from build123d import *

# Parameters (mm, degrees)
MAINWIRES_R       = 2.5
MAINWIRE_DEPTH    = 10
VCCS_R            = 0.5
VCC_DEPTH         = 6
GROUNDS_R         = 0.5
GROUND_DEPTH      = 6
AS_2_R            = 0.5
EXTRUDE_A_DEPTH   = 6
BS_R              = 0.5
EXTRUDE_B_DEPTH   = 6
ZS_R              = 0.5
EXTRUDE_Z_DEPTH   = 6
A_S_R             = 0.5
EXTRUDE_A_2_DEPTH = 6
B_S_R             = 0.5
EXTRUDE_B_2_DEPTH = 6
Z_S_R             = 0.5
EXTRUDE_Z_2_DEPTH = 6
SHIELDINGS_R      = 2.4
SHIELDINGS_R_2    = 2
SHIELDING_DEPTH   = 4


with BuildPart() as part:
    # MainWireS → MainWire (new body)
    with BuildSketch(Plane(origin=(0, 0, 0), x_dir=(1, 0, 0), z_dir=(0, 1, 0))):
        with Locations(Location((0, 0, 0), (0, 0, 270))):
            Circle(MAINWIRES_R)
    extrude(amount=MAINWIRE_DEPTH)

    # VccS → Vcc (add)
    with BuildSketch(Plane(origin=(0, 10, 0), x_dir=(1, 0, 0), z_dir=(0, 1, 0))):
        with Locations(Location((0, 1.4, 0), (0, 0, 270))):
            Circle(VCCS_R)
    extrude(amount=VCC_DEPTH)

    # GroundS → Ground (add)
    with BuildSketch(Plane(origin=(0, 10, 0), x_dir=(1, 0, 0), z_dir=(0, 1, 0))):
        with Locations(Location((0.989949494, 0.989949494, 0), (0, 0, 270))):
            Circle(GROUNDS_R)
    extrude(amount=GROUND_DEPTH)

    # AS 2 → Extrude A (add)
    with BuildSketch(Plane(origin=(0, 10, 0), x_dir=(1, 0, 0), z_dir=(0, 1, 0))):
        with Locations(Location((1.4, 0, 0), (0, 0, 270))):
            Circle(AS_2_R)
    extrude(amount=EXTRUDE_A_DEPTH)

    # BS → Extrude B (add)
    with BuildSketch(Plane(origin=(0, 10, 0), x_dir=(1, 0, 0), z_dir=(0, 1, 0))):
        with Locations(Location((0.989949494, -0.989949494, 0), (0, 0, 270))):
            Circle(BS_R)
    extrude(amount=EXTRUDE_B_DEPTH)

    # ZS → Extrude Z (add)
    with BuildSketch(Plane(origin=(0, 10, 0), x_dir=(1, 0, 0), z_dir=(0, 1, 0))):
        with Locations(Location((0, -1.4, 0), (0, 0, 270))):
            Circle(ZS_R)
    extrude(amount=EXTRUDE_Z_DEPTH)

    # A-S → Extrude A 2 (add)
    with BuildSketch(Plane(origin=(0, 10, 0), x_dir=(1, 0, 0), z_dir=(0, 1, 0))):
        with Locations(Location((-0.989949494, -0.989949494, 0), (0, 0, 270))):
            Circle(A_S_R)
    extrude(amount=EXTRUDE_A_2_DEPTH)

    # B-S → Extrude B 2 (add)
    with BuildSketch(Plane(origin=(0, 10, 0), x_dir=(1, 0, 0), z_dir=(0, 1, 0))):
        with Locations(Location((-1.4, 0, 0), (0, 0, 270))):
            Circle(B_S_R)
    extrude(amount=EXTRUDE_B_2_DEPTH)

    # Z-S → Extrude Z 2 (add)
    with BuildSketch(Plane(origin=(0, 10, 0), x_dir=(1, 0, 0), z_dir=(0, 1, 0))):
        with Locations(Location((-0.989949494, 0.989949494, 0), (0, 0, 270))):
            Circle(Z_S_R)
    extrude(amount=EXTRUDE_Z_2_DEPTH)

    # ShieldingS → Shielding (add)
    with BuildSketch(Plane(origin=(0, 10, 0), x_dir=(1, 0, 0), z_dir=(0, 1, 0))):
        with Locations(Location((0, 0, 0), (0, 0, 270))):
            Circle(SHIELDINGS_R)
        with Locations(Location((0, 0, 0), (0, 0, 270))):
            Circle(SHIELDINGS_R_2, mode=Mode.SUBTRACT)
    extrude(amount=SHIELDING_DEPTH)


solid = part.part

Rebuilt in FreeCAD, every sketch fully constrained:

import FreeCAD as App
import Part
import Sketcher
from FreeCAD import Vector

doc = App.newDocument("Part")
body = doc.addObject("PartDesign::Body", "Body")

# Sketch on XZ plane
sketch1 = doc.addObject("Sketcher::SketchObject", "Sketch")
body.addObject(sketch1)
sketch1.AttachmentSupport = (doc.XZ_Plane, [""])
sketch1.MapMode = "FlatFace"
sketch1.addGeometry(Part.Circle(Vector(0, 0, 0), Vector(0, 0, 1), 2.5), False)
sketch1.addConstraint([
    Sketcher.Constraint("Coincident", 0, 3, -1, 1),
    Sketcher.Constraint("Diameter", 0, 5.0),
])
pad1 = doc.addObject("PartDesign::Pad", "Pad")
body.addObject(pad1)
pad1.Profile = sketch1
pad1.Length = 10
pad1.Reversed = True

# Sketch on XZ plane
sketch2 = doc.addObject("Sketcher::SketchObject", "Sketch001")
body.addObject(sketch2)
sketch2.AttachmentSupport = (doc.XZ_Plane, [""])
sketch2.MapMode = "FlatFace"
sketch2.AttachmentOffset = App.Placement(Vector(0, 0, -10), App.Rotation())
sketch2.addGeometry(Part.Circle(Vector(0, -1.4, 0), Vector(0, 0, 1), 0.5), False)
sketch2.addConstraint([
    Sketcher.Constraint("PointOnObject", 0, 3, -2),
    Sketcher.Constraint("Diameter", 0, 1.0),
    Sketcher.Constraint("DistanceY", 0, 3, -1, 1, 1.4),
])
pad2 = doc.addObject("PartDesign::Pad", "Pad001")
body.addObject(pad2)
pad2.Profile = sketch2
pad2.Length = 6
pad2.Reversed = True

# Sketch on XZ plane
sketch3 = doc.addObject("Sketcher::SketchObject", "Sketch002")
body.addObject(sketch3)
sketch3.AttachmentSupport = (doc.XZ_Plane, [""])
sketch3.MapMode = "FlatFace"
sketch3.AttachmentOffset = App.Placement(Vector(0, 0, -10), App.Rotation())
sketch3.addGeometry(Part.Circle(Vector(1, -1, 0), Vector(0, 0, 1), 0.5), False)
sketch3.addConstraint([
    Sketcher.Constraint("Diameter", 0, 1.0),
    Sketcher.Constraint("DistanceX", -1, 1, 0, 3, 0.989949),
    Sketcher.Constraint("DistanceY", 0, 3, -1, 1, 0.989949),
])
pad3 = doc.addObject("PartDesign::Pad", "Pad002")
body.addObject(pad3)
pad3.Profile = sketch3
pad3.Length = 6
pad3.Reversed = True

# Sketch on XZ plane
sketch4 = doc.addObject("Sketcher::SketchObject", "Sketch003")
body.addObject(sketch4)
sketch4.AttachmentSupport = (doc.XZ_Plane, [""])
sketch4.MapMode = "FlatFace"
sketch4.AttachmentOffset = App.Placement(Vector(0, 0, -10), App.Rotation())
sketch4.addGeometry(Part.Circle(Vector(1.4, 0, 0), Vector(0, 0, 1), 0.5), False)
sketch4.addConstraint([
    Sketcher.Constraint("PointOnObject", 0, 3, -1),
    Sketcher.Constraint("Diameter", 0, 1.0),
    Sketcher.Constraint("DistanceX", -1, 1, 0, 3, 1.4),
])
pad4 = doc.addObject("PartDesign::Pad", "Pad003")
body.addObject(pad4)
pad4.Profile = sketch4
pad4.Length = 6
pad4.Reversed = True

# Sketch on XZ plane
sketch5 = doc.addObject("Sketcher::SketchObject", "Sketch004")
body.addObject(sketch5)
sketch5.AttachmentSupport = (doc.XZ_Plane, [""])
sketch5.MapMode = "FlatFace"
sketch5.AttachmentOffset = App.Placement(Vector(0, 0, -10), App.Rotation())
sketch5.addGeometry(Part.Circle(Vector(1, 1, 0), Vector(0, 0, 1), 0.5), False)
sketch5.addConstraint([
    Sketcher.Constraint("Diameter", 0, 1.0),
    Sketcher.Constraint("DistanceX", -1, 1, 0, 3, 0.989949),
    Sketcher.Constraint("DistanceY", -1, 1, 0, 3, 0.989949),
])
pad5 = doc.addObject("PartDesign::Pad", "Pad004")
body.addObject(pad5)
pad5.Profile = sketch5
pad5.Length = 6
pad5.Reversed = True

# Sketch on XZ plane
sketch6 = doc.addObject("Sketcher::SketchObject", "Sketch005")
body.addObject(sketch6)
sketch6.AttachmentSupport = (doc.XZ_Plane, [""])
sketch6.MapMode = "FlatFace"
sketch6.AttachmentOffset = App.Placement(Vector(0, 0, -10), App.Rotation())
sketch6.addGeometry(Part.Circle(Vector(0, 1.4, 0), Vector(0, 0, 1), 0.5), False)
sketch6.addConstraint([
    Sketcher.Constraint("PointOnObject", 0, 3, -2),
    Sketcher.Constraint("Diameter", 0, 1.0),
    Sketcher.Constraint("DistanceY", -1, 1, 0, 3, 1.4),
])
pad6 = doc.addObject("PartDesign::Pad", "Pad005")
body.addObject(pad6)
pad6.Profile = sketch6
pad6.Length = 6
pad6.Reversed = True

# Sketch on XZ plane
sketch7 = doc.addObject("Sketcher::SketchObject", "Sketch006")
body.addObject(sketch7)
sketch7.AttachmentSupport = (doc.XZ_Plane, [""])
sketch7.MapMode = "FlatFace"
sketch7.AttachmentOffset = App.Placement(Vector(0, 0, -10), App.Rotation())
sketch7.addGeometry(Part.Circle(Vector(-1, 1, 0), Vector(0, 0, 1), 0.5), False)
sketch7.addConstraint([
    Sketcher.Constraint("Diameter", 0, 1.0),
    Sketcher.Constraint("DistanceX", 0, 3, -1, 1, 0.989949),
    Sketcher.Constraint("DistanceY", -1, 1, 0, 3, 0.989949),
])
pad7 = doc.addObject("PartDesign::Pad", "Pad006")
body.addObject(pad7)
pad7.Profile = sketch7
pad7.Length = 6
pad7.Reversed = True

# Sketch on XZ plane
sketch8 = doc.addObject("Sketcher::SketchObject", "Sketch007")
body.addObject(sketch8)
sketch8.AttachmentSupport = (doc.XZ_Plane, [""])
sketch8.MapMode = "FlatFace"
sketch8.AttachmentOffset = App.Placement(Vector(0, 0, -10), App.Rotation())
sketch8.addGeometry(Part.Circle(Vector(-1.4, 0, 0), Vector(0, 0, 1), 0.5), False)
sketch8.addConstraint([
    Sketcher.Constraint("PointOnObject", 0, 3, -1),
    Sketcher.Constraint("Diameter", 0, 1.0),
    Sketcher.Constraint("DistanceX", 0, 3, -1, 1, 1.4),
])
pad8 = doc.addObject("PartDesign::Pad", "Pad007")
body.addObject(pad8)
pad8.Profile = sketch8
pad8.Length = 6
pad8.Reversed = True

# Sketch on XZ plane
sketch9 = doc.addObject("Sketcher::SketchObject", "Sketch008")
body.addObject(sketch9)
sketch9.AttachmentSupport = (doc.XZ_Plane, [""])
sketch9.MapMode = "FlatFace"
sketch9.AttachmentOffset = App.Placement(Vector(0, 0, -10), App.Rotation())
sketch9.addGeometry(Part.Circle(Vector(-1, -1, 0), Vector(0, 0, 1), 0.5), False)
sketch9.addConstraint([
    Sketcher.Constraint("Diameter", 0, 1.0),
    Sketcher.Constraint("DistanceX", 0, 3, -1, 1, 0.989949),
    Sketcher.Constraint("DistanceY", 0, 3, -1, 1, 0.989949),
])
pad9 = doc.addObject("PartDesign::Pad", "Pad008")
body.addObject(pad9)
pad9.Profile = sketch9
pad9.Length = 6
pad9.Reversed = True

# Sketch on XZ plane
sketch10 = doc.addObject("Sketcher::SketchObject", "Sketch009")
body.addObject(sketch10)
sketch10.AttachmentSupport = (doc.XZ_Plane, [""])
sketch10.MapMode = "FlatFace"
sketch10.AttachmentOffset = App.Placement(Vector(0, 0, -10), App.Rotation())
sketch10.addGeometry([
    Part.Circle(Vector(0, 0, 0), Vector(0, 0, 1), 2.4),
    Part.Circle(Vector(0, 0, 0), Vector(0, 0, 1), 2),
], False)
sketch10.addConstraint([
    Sketcher.Constraint("Coincident", 0, 3, -1, 1),
    Sketcher.Constraint("Coincident", 1, 3, -1, 1),
    Sketcher.Constraint("Diameter", 1, 4.0),
    Sketcher.Constraint("Diameter", 0, 4.8),
])
pad10 = doc.addObject("PartDesign::Pad", "Pad009")
body.addObject(pad10)
pad10.Profile = sketch10
pad10.Length = 4
pad10.Reversed = True

doc.recompute()
